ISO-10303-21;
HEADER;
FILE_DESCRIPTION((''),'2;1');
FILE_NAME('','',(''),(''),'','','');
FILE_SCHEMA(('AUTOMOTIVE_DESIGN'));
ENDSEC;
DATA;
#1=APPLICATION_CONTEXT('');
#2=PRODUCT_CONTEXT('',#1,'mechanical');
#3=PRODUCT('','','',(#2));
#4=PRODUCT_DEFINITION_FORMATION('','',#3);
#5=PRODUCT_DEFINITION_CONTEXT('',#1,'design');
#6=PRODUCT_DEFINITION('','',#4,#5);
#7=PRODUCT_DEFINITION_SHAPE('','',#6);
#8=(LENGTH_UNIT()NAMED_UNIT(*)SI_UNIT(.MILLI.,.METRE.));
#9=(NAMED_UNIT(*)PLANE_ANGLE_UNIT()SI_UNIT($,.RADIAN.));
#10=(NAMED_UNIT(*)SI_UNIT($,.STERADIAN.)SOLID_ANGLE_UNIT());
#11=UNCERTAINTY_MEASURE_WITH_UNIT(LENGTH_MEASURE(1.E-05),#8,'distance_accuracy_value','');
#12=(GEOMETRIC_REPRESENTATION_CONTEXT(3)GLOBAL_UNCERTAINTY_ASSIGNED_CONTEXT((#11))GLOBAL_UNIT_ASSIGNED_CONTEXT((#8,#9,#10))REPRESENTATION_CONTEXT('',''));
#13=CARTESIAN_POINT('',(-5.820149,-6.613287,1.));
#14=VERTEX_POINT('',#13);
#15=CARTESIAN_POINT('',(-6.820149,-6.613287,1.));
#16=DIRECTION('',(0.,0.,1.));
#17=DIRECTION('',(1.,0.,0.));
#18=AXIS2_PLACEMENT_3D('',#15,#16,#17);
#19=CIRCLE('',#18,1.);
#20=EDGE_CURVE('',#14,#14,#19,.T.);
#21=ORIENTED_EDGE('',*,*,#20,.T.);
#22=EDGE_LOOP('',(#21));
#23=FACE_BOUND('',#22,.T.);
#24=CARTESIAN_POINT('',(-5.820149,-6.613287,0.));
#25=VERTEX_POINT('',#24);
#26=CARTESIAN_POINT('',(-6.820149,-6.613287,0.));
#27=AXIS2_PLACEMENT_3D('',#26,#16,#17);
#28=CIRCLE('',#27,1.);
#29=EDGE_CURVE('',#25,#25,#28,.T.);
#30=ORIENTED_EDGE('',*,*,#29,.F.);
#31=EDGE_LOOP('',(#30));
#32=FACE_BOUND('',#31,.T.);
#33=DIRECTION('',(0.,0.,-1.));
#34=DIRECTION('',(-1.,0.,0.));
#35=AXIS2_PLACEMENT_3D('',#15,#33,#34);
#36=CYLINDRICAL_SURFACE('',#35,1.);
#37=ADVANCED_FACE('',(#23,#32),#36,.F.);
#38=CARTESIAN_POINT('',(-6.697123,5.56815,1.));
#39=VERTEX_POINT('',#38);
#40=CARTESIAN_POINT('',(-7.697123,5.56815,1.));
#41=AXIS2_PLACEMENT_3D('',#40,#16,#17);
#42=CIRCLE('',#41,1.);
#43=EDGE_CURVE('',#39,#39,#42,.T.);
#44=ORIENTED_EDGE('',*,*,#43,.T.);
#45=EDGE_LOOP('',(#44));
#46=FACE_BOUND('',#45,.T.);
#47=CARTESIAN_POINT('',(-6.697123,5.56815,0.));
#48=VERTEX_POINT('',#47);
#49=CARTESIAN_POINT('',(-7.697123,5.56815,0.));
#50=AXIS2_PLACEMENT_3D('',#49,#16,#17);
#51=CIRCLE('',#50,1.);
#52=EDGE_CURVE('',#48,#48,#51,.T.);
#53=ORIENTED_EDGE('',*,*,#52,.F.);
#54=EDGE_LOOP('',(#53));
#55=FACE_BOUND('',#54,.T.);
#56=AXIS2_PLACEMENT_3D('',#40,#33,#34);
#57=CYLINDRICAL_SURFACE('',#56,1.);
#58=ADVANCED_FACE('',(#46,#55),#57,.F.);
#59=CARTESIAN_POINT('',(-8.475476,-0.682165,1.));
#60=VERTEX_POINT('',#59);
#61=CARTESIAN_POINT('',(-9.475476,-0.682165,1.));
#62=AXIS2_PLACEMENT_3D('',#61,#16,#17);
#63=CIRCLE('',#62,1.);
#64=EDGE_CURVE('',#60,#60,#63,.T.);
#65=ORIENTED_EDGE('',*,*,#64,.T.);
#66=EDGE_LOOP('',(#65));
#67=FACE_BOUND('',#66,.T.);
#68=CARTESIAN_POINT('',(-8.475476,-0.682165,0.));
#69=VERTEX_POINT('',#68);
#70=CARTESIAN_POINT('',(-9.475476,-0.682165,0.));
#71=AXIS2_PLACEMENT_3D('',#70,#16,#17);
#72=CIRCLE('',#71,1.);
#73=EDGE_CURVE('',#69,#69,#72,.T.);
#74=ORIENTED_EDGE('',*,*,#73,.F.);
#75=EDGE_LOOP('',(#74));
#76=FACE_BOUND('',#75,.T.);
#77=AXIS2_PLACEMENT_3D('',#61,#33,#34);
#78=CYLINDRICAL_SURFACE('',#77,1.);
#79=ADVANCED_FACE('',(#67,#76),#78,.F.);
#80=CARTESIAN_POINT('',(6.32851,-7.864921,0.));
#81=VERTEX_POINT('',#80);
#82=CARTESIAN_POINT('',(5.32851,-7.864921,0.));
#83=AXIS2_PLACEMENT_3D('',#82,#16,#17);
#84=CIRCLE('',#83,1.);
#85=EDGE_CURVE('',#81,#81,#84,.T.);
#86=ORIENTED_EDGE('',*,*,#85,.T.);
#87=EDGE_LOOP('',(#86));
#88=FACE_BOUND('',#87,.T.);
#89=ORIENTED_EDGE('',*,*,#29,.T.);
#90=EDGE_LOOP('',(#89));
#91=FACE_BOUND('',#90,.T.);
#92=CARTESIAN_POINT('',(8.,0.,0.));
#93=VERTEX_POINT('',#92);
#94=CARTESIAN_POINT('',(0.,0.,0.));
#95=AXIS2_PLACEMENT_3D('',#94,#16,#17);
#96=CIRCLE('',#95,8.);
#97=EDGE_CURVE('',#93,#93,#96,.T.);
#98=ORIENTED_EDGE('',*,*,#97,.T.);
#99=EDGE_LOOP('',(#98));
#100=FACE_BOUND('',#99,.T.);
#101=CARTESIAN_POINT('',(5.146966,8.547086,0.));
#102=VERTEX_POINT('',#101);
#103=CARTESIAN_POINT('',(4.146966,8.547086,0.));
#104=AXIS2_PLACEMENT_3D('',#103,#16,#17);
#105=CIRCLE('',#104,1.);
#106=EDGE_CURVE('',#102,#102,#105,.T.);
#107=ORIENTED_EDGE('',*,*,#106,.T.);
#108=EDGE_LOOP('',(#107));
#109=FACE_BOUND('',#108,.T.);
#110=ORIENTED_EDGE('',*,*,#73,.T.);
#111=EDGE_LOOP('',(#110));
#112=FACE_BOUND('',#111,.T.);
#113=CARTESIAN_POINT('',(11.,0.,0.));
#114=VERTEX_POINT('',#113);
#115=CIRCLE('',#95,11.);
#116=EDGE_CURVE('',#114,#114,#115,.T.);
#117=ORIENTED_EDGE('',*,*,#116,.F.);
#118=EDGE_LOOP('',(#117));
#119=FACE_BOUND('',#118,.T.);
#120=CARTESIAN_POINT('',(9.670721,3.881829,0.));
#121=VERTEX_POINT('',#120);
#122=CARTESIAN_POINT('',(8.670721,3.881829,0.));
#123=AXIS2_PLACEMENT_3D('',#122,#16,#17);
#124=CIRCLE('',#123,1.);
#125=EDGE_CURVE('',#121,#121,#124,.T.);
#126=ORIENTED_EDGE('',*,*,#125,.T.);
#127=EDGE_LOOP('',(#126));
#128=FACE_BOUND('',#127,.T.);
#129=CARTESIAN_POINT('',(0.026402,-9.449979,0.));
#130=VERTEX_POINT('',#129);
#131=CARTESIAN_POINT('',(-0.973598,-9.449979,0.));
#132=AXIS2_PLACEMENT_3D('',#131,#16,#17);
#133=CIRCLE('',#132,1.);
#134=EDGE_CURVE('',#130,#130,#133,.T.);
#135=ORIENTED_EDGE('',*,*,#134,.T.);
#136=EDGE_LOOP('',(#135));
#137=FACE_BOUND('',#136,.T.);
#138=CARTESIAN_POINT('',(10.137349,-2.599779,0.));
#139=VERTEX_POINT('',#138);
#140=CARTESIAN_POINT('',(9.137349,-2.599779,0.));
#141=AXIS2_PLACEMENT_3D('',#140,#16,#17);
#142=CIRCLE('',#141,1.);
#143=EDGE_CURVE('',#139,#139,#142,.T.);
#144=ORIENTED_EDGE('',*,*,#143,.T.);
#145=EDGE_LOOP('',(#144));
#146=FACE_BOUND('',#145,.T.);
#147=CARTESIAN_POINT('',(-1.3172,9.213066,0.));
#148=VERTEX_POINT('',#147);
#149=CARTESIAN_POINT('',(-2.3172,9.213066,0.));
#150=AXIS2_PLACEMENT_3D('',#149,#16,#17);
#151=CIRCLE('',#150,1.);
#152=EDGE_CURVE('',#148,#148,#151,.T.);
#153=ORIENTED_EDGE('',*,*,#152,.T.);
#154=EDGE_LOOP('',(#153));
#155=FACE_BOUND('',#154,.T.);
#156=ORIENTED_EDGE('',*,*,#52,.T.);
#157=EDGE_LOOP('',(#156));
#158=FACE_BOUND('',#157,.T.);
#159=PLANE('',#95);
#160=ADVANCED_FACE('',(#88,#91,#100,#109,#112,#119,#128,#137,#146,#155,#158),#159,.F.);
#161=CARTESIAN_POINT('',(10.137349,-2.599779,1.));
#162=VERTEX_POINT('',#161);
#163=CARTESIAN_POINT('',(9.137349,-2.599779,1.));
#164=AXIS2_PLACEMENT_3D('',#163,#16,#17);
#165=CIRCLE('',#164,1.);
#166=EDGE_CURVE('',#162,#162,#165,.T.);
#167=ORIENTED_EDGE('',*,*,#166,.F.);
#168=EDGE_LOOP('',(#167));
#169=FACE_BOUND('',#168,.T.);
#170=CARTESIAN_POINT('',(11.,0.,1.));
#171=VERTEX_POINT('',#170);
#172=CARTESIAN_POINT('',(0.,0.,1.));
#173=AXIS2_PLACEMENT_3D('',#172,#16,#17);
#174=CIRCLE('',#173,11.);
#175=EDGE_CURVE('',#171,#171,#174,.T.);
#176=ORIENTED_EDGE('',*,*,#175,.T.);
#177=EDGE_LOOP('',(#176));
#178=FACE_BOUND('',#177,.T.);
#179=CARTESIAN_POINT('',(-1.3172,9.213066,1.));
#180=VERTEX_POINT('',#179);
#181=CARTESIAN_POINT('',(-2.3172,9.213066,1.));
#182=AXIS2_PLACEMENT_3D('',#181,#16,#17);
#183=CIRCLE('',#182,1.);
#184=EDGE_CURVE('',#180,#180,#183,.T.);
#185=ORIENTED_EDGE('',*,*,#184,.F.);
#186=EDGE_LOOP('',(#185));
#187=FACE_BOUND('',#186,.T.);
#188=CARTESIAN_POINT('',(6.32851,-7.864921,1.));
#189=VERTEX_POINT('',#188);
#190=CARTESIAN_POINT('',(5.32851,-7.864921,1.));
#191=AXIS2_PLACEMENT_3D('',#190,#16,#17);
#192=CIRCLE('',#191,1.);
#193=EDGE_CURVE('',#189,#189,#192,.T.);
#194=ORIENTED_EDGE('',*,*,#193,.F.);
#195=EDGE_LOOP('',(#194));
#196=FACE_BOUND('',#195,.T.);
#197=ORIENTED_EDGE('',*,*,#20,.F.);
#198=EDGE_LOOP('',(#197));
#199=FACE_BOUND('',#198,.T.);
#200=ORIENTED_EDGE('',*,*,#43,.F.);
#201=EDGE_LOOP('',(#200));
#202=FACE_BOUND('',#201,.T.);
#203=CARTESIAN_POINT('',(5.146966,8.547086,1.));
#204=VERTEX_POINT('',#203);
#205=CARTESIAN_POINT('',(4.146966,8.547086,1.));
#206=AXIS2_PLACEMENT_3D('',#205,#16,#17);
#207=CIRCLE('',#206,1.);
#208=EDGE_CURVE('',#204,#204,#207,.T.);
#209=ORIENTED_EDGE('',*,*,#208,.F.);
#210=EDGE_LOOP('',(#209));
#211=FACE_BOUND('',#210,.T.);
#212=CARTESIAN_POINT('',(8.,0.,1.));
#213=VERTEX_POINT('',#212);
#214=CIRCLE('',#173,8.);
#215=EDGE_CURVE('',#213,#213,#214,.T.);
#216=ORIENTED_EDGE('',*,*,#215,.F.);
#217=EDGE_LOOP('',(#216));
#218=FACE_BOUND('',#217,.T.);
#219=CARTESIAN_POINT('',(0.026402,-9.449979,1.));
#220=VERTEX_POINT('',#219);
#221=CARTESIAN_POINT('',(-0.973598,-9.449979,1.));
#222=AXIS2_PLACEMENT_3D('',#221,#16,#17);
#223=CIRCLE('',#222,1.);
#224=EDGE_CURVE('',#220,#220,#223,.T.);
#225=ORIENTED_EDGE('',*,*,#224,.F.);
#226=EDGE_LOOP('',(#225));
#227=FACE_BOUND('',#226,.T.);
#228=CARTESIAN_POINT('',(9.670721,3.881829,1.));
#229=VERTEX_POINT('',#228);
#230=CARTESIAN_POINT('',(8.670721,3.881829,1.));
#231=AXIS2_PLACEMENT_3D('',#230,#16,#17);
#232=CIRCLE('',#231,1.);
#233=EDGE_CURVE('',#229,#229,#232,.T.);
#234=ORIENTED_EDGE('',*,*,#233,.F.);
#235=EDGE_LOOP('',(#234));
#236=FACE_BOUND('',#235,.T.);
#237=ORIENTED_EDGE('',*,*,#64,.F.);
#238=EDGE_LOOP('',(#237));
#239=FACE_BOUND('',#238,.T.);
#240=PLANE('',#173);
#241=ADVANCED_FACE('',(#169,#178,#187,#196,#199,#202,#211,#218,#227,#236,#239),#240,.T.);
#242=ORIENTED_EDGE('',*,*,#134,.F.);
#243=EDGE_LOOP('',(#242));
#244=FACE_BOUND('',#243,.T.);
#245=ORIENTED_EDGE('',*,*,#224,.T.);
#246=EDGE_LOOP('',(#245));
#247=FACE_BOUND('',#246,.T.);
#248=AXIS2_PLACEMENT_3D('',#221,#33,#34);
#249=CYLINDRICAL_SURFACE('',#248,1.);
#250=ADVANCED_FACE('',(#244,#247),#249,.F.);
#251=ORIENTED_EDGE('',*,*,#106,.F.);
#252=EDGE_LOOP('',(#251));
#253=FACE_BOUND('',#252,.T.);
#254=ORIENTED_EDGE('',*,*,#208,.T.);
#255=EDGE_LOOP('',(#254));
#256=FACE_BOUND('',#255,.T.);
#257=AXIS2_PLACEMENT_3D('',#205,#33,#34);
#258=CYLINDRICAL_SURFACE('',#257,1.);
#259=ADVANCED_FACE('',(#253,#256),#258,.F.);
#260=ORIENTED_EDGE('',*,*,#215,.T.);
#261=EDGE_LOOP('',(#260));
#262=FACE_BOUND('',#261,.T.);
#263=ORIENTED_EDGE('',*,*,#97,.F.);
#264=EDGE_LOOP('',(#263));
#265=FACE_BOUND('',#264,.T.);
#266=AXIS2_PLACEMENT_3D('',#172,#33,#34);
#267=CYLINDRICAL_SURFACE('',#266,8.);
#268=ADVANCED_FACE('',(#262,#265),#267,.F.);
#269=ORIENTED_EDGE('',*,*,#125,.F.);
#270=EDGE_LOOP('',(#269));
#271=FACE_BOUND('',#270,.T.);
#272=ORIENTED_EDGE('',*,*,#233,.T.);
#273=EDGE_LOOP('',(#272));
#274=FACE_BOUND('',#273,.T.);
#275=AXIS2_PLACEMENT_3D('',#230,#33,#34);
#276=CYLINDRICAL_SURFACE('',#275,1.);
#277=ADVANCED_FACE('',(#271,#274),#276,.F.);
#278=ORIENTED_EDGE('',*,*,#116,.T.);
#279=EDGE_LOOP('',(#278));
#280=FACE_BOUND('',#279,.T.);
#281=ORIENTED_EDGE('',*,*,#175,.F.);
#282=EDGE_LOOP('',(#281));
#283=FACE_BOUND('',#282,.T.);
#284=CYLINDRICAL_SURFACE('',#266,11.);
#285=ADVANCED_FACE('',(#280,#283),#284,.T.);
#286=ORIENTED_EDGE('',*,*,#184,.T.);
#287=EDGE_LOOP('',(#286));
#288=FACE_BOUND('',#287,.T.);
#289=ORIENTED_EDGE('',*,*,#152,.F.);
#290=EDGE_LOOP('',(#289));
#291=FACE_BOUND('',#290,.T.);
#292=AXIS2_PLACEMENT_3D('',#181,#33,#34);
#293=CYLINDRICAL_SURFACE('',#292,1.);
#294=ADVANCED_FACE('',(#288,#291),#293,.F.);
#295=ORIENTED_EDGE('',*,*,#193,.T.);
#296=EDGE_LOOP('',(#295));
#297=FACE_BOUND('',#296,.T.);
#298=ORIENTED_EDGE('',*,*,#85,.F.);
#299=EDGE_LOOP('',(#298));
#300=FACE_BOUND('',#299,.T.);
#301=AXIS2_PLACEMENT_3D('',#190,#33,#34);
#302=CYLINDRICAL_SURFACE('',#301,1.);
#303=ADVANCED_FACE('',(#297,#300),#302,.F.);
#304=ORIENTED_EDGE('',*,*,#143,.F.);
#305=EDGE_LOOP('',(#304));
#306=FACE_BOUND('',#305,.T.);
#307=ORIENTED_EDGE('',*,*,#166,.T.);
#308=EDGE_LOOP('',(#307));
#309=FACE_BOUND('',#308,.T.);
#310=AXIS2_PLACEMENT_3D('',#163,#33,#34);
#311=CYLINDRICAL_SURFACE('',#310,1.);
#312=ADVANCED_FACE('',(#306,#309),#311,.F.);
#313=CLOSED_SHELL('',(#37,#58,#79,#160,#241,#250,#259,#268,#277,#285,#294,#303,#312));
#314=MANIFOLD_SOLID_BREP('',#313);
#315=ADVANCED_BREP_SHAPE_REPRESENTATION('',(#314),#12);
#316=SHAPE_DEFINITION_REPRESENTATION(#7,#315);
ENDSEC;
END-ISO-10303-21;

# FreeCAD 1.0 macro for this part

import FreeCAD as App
import Part
import Sketcher

doc = App.newDocument("Part")
body = doc.addObject("PartDesign::Body", "Body")

# Sketch on XY plane
sketch1 = body.newObject("Sketcher::SketchObject", "Sketch")
sketch1.AttachmentSupport = (doc.getObject("XY_Plane"), [""])
sketch1.MapMode = "FlatFace"
sketch1.addGeometry(Part.Circle(App.Vector(0, 0, 0), App.Vector(0, 0, 1), 11), False)
sketch1.addGeometry(Part.Circle(App.Vector(-6.8, -6.6, 0), App.Vector(0, 0, 1), 1), False)
sketch1.addGeometry(Part.Circle(App.Vector(-1, -9.4, 0), App.Vector(0, 0, 1), 1), False)
sketch1.addGeometry(Part.Circle(App.Vector(-9.5, -0.7, 0), App.Vector(0, 0, 1), 1), False)
sketch1.addGeometry(Part.Circle(App.Vector(5.3, -7.9, 0), App.Vector(0, 0, 1), 1), False)
sketch1.addGeometry(Part.Circle(App.Vector(9.1, -2.6, 0), App.Vector(0, 0, 1), 1), False)
sketch1.addGeometry(Part.Circle(App.Vector(-7.7, 5.6, 0), App.Vector(0, 0, 1), 1), False)
sketch1.addGeometry(Part.Circle(App.Vector(-2.3, 9.2, 0), App.Vector(0, 0, 1), 1), False)
sketch1.addGeometry(Part.Circle(App.Vector(0, 0, 0), App.Vector(0, 0, 1), 8), False)
sketch1.addGeometry(Part.Circle(App.Vector(8.7, 3.9, 0), App.Vector(0, 0, 1), 1), False)
sketch1.addGeometry(Part.Circle(App.Vector(4.1, 8.5, 0), App.Vector(0, 0, 1), 1), False)
sketch1.addConstraint(Sketcher.Constraint("Coincident", 0, 3, -1, 1))
sketch1.addConstraint(Sketcher.Constraint("Coincident", 8, 3, -1, 1))
sketch1.addConstraint(Sketcher.Constraint("Equal", 1, 2))
sketch1.addConstraint(Sketcher.Constraint("Equal", 2, 3))
sketch1.addConstraint(Sketcher.Constraint("Equal", 3, 4))
sketch1.addConstraint(Sketcher.Constraint("Equal", 4, 5))
sketch1.addConstraint(Sketcher.Constraint("Equal", 5, 6))
sketch1.addConstraint(Sketcher.Constraint("Equal", 6, 7))
sketch1.addConstraint(Sketcher.Constraint("Equal", 7, 9))
sketch1.addConstraint(Sketcher.Constraint("Equal", 9, 10))
sketch1.addConstraint(Sketcher.Constraint("Diameter", 0, 22.0))
sketch1.addConstraint(Sketcher.Constraint("Diameter", 1, 2.0))
sketch1.addConstraint(Sketcher.Constraint("Diameter", 8, 16.0))
sketch1.addConstraint(Sketcher.Constraint("DistanceX", 7, 3, -1, 1, 2.3172))
sketch1.addConstraint(Sketcher.Constraint("DistanceY", 2, 3, 5, 3, 6.850201))
sketch1.addConstraint(Sketcher.Constraint("DistanceX", 1, 3, 5, 3, 15.957498))
sketch1.addConstraint(Sketcher.Constraint("DistanceX", 1, 3, -1, 1, 6.820149))
sketch1.addConstraint(Sketcher.Constraint("DistanceY", 2, 3, -1, 1, 9.449979))
sketch1.addConstraint(Sketcher.Constraint("DistanceX", -1, 1, 4, 3, 5.32851))
sketch1.addConstraint(Sketcher.Constraint("DistanceY", 4, 3, -1, 1, 7.864921))
sketch1.addConstraint(Sketcher.Constraint("DistanceY", -1, 1, 6, 3, 5.56815))
sketch1.addConstraint(Sketcher.Constraint("DistanceX", -1, 1, 9, 3, 8.670721))
sketch1.addConstraint(Sketcher.Constraint("DistanceY", -1, 1, 9, 3, 3.881829))
sketch1.addConstraint(Sketcher.Constraint("DistanceX", 1, 3, 2, 3, 5.846551))
sketch1.addConstraint(Sketcher.Constraint("DistanceY", 2, 3, 1, 3, 2.836692))
sketch1.addConstraint(Sketcher.Constraint("DistanceX", 3, 3, 2, 3, 8.501878))
sketch1.addConstraint(Sketcher.Constraint("DistanceY", 3, 3, 7, 3, 9.895231))
sketch1.addConstraint(Sketcher.Constraint("DistanceY", 10, 3, 7, 3, 0.66598))
sketch1.addConstraint(Sketcher.Constraint("DistanceY", 3, 3, -1, 1, 0.682165))
sketch1.addConstraint(Sketcher.Constraint("DistanceX", 6, 3, -1, 1, 7.697123))
sketch1.addConstraint(Sketcher.Constraint("DistanceX", -1, 1, 10, 3, 4.146966))
pad1 = body.newObject("PartDesign::Pad", "Pad")
pad1.Profile = sketch1
pad1.Length = 1

doc.recompute()
